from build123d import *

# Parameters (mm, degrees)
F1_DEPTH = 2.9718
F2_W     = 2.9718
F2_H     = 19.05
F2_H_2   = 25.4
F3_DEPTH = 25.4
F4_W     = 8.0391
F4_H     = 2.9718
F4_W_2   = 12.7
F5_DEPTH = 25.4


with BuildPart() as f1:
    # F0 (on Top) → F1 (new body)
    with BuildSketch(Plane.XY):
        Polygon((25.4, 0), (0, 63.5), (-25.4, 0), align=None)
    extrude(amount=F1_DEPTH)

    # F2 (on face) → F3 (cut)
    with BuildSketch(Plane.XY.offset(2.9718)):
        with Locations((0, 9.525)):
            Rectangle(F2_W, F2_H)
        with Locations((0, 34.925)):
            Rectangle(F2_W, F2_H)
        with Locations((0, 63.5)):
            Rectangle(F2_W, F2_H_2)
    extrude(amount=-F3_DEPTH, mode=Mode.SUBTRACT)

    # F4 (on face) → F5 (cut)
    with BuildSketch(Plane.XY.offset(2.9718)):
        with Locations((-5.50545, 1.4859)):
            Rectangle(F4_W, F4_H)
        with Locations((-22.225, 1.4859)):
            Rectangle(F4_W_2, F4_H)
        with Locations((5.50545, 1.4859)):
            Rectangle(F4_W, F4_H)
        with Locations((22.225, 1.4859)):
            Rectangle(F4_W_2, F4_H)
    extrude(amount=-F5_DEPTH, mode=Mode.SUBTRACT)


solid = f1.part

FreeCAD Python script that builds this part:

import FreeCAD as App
import Part
import Sketcher
Q = App.Units.Quantity

doc = App.newDocument("Part")
body = doc.addObject("PartDesign::Body", "Body")

sketch1 = body.newObject("Sketcher::SketchObject", "Sketch")
sketch1.AttachmentSupport = (doc.getObject("XY_Plane"), [""])
sketch1.MapMode = "FlatFace"
sketch1.addGeometry([
    Part.LineSegment(App.Vector(25.4, 0, 0), App.Vector(0, 63.5, 0)),
    Part.LineSegment(App.Vector(0, 63.5, 0), App.Vector(-25.4, 0, 0)),
    Part.LineSegment(App.Vector(-25.4, 0, 0), App.Vector(25.4, 0, 0)),
], False)
sketch1.addConstraint([
    Sketcher.Constraint("Coincident", 0, 2, 1, 1),
    Sketcher.Constraint("Coincident", 1, 2, 2, 1),
    Sketcher.Constraint("Coincident", 2, 2, 0, 1),
    Sketcher.Constraint("Horizontal", 2),
    Sketcher.Constraint("Symmetric", 1, 2, 2, 2, -1, 1),
    Sketcher.Constraint("PointOnObject", 0, 2, -2),
    Sketcher.Constraint("DistanceX", 2, 1, 2, 2, Q("2 in")),
    Sketcher.Constraint("DistanceY", -1, 1, 0, 2, Q("2.5 in")),
])
pad1 = body.newObject("PartDesign::Pad", "Pad")
pad1.Profile = sketch1
pad1.Length = Q("0.117 in")

sketch2 = body.newObject("Sketcher::SketchObject", "Sketch001")
sketch2.AttachmentSupport = (doc.getObject("XY_Plane"), [""])
sketch2.MapMode = "FlatFace"
sketch2.AttachmentOffset = App.Placement(App.Vector(0, 0, 0.117 * 25.4), App.Rotation())
sketch2.addGeometry([
    Part.LineSegment(App.Vector(-1.4859, 19.05, 0), App.Vector(-1.4859, 0, 0)),
    Part.LineSegment(App.Vector(-1.4859, 0, 0), App.Vector(1.4859, 0, 0)),
    Part.LineSegment(App.Vector(1.4859, 0, 0), App.Vector(1.4859, 19.05, 0)),
    Part.LineSegment(App.Vector(1.4859, 19.05, 0), App.Vector(-1.4859, 19.05, 0)),
    Part.LineSegment(App.Vector(-1.4859, 44.45, 0), App.Vector(-1.4859, 25.4, 0)),
    Part.LineSegment(App.Vector(-1.4859, 25.4, 0), App.Vector(1.4859, 25.4, 0)),
    Part.LineSegment(App.Vector(1.4859, 25.4, 0), App.Vector(1.4859, 44.45, 0)),
    Part.LineSegment(App.Vector(1.4859, 44.45, 0), App.Vector(-1.4859, 44.45, 0)),
    Part.LineSegment(App.Vector(-1.4859, 76.2, 0), App.Vector(-1.4859, 50.8, 0)),
    Part.LineSegment(App.Vector(-1.4859, 50.8, 0), App.Vector(1.4859, 50.8, 0)),
    Part.LineSegment(App.Vector(1.4859, 50.8, 0), App.Vector(1.4859, 76.2, 0)),
    Part.LineSegment(App.Vector(1.4859, 76.2, 0), App.Vector(-1.4859, 76.2, 0)),
], False)
sketch2.addConstraint([
    Sketcher.Constraint("Coincident", 0, 2, 1, 1),
    Sketcher.Constraint("Coincident", 1, 2, 2, 1),
    Sketcher.Constraint("Coincident", 2, 2, 3, 1),
    Sketcher.Constraint("Coincident", 3, 2, 0, 1),
    Sketcher.Constraint("Coincident", 4, 2, 5, 1),
    Sketcher.Constraint("Coincident", 5, 2, 6, 1),
    Sketcher.Constraint("Coincident", 6, 2, 7, 1),
    Sketcher.Constraint("Coincident", 7, 2, 4, 1),
    Sketcher.Constraint("Coincident", 8, 2, 9, 1),
    Sketcher.Constraint("Coincident", 9, 2, 10, 1),
    Sketcher.Constraint("Coincident", 10, 2, 11, 1),
    Sketcher.Constraint("Coincident", 11, 2, 8, 1),
    Sketcher.Constraint("Vertical", 0),
    Sketcher.Constraint("Horizontal", 1),
    Sketcher.Constraint("Vertical", 2),
    Sketcher.Constraint("Horizontal", 3),
    Sketcher.Constraint("Vertical", 4),
    Sketcher.Constraint("Horizontal", 5),
    Sketcher.Constraint("Vertical", 6),
    Sketcher.Constraint("Horizontal", 7),
    Sketcher.Constraint("Vertical", 8),
    Sketcher.Constraint("Horizontal", 9),
    Sketcher.Constraint("Vertical", 10),
    Sketcher.Constraint("Horizontal", 11),
    Sketcher.Constraint("Symmetric", 0, 2, 1, 2, -1, 1),
    Sketcher.Constraint("Vertical", 3, 2, 4, 2),
    Sketcher.Constraint("Vertical", 2, 2, 5, 2),
    Sketcher.Constraint("Vertical", 7, 2, 8, 2),
    Sketcher.Constraint("Vertical", 6, 2, 9, 2),
    Sketcher.Constraint("Equal", 2, 4),
    Sketcher.Constraint("DistanceY", 8, 2, 8, 1, Q("1 in")),
    Sketcher.Constraint("DistanceY", -1, 1, 4, 2, Q("1 in")),
    Sketcher.Constraint("DistanceY", -1, 1, 8, 2, Q("2 in")),
    Sketcher.Constraint("DistanceY", 0, 2, 0, 1, Q("0.75 in")),
    Sketcher.Constraint("DistanceX", 1, 1, 1, 2, Q("0.117 in")),
])
pocket1 = body.newObject("PartDesign::Pocket", "Pocket")
pocket1.Profile = sketch2
pocket1.Length = Q("1 in")

sketch3 = body.newObject("Sketcher::SketchObject", "Sketch002")
sketch3.AttachmentSupport = (doc.getObject("XY_Plane"), [""])
sketch3.MapMode = "FlatFace"
sketch3.AttachmentOffset = App.Placement(App.Vector(0, 0, 0.117 * 25.4), App.Rotation())
sketch3.addGeometry([
    Part.LineSegment(App.Vector(-9.525, 2.9718, 0), App.Vector(-9.525, 0, 0)),
    Part.LineSegment(App.Vector(-9.525, 0, 0), App.Vector(-1.4859, 0, 0)),
    Part.LineSegment(App.Vector(-1.4859, 0, 0), App.Vector(-1.4859, 2.9718, 0)),
    Part.LineSegment(App.Vector(-1.4859, 2.9718, 0), App.Vector(-9.525, 2.9718, 0)),
    Part.LineSegment(App.Vector(-28.575, 2.9718, 0), App.Vector(-28.575, 0, 0)),
    Part.LineSegment(App.Vector(-28.575, 0, 0), App.Vector(-15.875, 0, 0)),
    Part.LineSegment(App.Vector(-15.875, 0, 0), App.Vector(-15.875, 2.9718, 0)),
    Part.LineSegment(App.Vector(-15.875, 2.9718, 0), App.Vector(-28.575, 2.9718, 0)),
    Part.LineSegment(App.Vector(1.4859, 2.9718, 0), App.Vector(1.4859, 0, 0)),
    Part.LineSegment(App.Vector(1.4859, 0, 0), App.Vector(9.525, 0, 0)),
    Part.LineSegment(App.Vector(9.525, 0, 0), App.Vector(9.525, 2.9718, 0)),
    Part.LineSegment(App.Vector(9.525, 2.9718, 0), App.Vector(1.4859, 2.9718, 0)),
    Part.LineSegment(App.Vector(15.875, 2.9718, 0), App.Vector(15.875, 0, 0)),
    Part.LineSegment(App.Vector(15.875, 0, 0), App.Vector(28.575, 0, 0)),
    Part.LineSegment(App.Vector(28.575, 0, 0), App.Vector(28.575, 2.9718, 0)),
    Part.LineSegment(App.Vector(28.575, 2.9718, 0), App.Vector(15.875, 2.9718, 0)),
], False)
sketch3.addConstraint([
    Sketcher.Constraint("Coincident", 0, 2, 1, 1),
    Sketcher.Constraint("Coincident", 1, 2, 2, 1),
    Sketcher.Constraint("Coincident", 2, 2, 3, 1),
    Sketcher.Constraint("Coincident", 3, 2, 0, 1),
    Sketcher.Constraint("Coincident", 4, 2, 5, 1),
    Sketcher.Constraint("Coincident", 5, 2, 6, 1),
    Sketcher.Constraint("Coincident", 6, 2, 7, 1),
    Sketcher.Constraint("Coincident", 7, 2, 4, 1),
    Sketcher.Constraint("Coincident", 8, 2, 9, 1),
    Sketcher.Constraint("Coincident", 9, 2, 10, 1),
    Sketcher.Constraint("Coincident", 10, 2, 11, 1),
    Sketcher.Constraint("Coincident", 11, 2, 8, 1),
    Sketcher.Constraint("Coincident", 12, 2, 13, 1),
    Sketcher.Constraint("Coincident", 13, 2, 14, 1),
    Sketcher.Constraint("Coincident", 14, 2, 15, 1),
    Sketcher.Constraint("Coincident", 15, 2, 12, 1),
    Sketcher.Constraint("Vertical", 0),
    Sketcher.Constraint("Horizontal", 1),
    Sketcher.Constraint("Vertical", 2),
    Sketcher.Constraint("Horizontal", 3),
    Sketcher.Constraint("Vertical", 4),
    Sketcher.Constraint("Horizontal", 5),
    Sketcher.Constraint("Vertical", 6),
    Sketcher.Constraint("Horizontal", 7),
    Sketcher.Constraint("Vertical", 8),
    Sketcher.Constraint("Horizontal", 9),
    Sketcher.Constraint("Vertical", 10),
    Sketcher.Constraint("Horizontal", 11),
    Sketcher.Constraint("Vertical", 12),
    Sketcher.Constraint("Horizontal", 13),
    Sketcher.Constraint("Vertical", 14),
    Sketcher.Constraint("Horizontal", 15),
    Sketcher.Constraint("Symmetric", 1, 2, 8, 2, -1, 1),
    Sketcher.Constraint("Symmetric", 5, 2, 12, 2, -1, 1),
    Sketcher.Constraint("Symmetric", 0, 2, 9, 2, -2),
    Sketcher.Constraint("Symmetric", 4, 2, 13, 2, -2),
    Sketcher.Constraint("Horizontal", 3, 2, 6, 2),
    Sketcher.Constraint("Horizontal", 7, 2, 10, 2),
    Sketcher.Constraint("Horizontal", 11, 2, 14, 2),
    Sketcher.Constraint("DistanceX", 5, 1, 5, 2, Q("0.5 in")),
    Sketcher.Constraint("DistanceY", 0, 2, 0, 1, Q("0.117 in")),
    Sketcher.Constraint("DistanceX", 4, 2, 0, 2, Q("0.75 in")),
    Sketcher.Constraint("DistanceX", 0, 2, 9, 2, Q("0.75 in")),
    Sketcher.Constraint("DistanceX", 1, 1, 1, 2, Q("0.3165 in")),
])
pocket2 = body.newObject("PartDesign::Pocket", "Pocket001")
pocket2.Profile = sketch3
pocket2.Length = Q("1 in")

doc.recompute()
